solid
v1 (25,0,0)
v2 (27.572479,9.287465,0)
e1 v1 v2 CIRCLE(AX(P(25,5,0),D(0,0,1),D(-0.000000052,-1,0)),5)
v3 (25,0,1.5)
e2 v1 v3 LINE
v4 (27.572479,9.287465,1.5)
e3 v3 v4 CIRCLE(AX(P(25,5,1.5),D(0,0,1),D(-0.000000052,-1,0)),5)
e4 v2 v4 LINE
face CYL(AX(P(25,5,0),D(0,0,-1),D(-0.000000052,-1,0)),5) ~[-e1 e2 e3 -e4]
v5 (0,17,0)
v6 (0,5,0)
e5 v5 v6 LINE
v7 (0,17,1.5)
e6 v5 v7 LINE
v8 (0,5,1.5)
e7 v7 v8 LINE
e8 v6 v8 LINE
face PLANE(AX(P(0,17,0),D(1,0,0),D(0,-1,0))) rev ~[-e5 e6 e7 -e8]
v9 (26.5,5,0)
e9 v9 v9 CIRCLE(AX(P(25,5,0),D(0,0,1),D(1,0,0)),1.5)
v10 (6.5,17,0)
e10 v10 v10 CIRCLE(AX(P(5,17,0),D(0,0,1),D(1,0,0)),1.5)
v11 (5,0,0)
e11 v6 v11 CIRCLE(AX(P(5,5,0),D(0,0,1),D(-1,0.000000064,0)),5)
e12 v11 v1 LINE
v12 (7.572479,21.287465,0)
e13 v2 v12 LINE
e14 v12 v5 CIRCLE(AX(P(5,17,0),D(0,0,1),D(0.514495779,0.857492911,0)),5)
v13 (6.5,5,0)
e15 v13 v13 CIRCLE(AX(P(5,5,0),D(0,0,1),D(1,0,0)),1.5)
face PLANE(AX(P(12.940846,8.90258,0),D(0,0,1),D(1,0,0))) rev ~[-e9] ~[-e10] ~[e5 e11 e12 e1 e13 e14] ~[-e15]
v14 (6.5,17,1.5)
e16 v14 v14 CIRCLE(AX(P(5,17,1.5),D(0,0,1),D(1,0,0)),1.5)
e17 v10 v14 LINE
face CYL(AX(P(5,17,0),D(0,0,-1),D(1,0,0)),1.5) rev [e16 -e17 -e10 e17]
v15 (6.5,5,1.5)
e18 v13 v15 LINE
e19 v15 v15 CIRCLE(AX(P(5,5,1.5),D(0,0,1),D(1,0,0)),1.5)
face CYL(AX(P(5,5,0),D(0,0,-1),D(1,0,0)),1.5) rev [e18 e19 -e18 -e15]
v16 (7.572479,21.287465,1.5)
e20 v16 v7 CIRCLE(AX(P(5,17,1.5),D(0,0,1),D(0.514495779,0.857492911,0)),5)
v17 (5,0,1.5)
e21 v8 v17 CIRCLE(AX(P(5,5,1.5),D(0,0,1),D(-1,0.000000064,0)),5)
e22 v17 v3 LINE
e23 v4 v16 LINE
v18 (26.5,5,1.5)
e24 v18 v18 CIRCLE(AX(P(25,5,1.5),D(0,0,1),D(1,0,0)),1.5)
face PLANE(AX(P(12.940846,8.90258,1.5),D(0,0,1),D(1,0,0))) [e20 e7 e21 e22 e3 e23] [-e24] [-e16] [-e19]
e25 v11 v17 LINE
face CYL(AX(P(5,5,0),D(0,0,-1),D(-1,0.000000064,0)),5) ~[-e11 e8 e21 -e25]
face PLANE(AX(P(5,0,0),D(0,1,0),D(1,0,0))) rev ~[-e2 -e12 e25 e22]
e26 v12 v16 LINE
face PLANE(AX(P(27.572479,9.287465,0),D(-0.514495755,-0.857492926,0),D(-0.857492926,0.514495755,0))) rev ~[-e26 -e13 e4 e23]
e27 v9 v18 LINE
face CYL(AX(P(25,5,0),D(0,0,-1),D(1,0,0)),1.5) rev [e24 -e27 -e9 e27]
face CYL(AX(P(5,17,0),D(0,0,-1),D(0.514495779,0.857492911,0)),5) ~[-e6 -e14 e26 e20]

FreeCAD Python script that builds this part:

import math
import FreeCAD as App
import Part
import Sketcher

V = App.Vector

doc = App.newDocument("Part")
params = doc.addObject("Spreadsheet::Sheet", "Params")
for row, (alias, value) in enumerate([
    ("sketch1_diameter", "3 mm"),
    ("sketch1_radius", "5 mm"),
    ("sketch1_width", "20 mm"),
    ("sketch1_height", "12 mm"),
    ("pad1_length", "1.5 mm"),
], start=1):
    params.set(f"A{row}", alias)
    params.set(f"B{row}", "=" + value)
    params.setAlias(f"B{row}", alias)

body = doc.addObject("PartDesign::Body", "Body")

# Sketch on XY plane
sketch1 = body.newObject("Sketcher::SketchObject", "Sketch")
sketch1.AttachmentSupport = (doc.getObject("XY_Plane"), [""])
sketch1.MapMode = "FlatFace"
sketch1.addGeometry(Part.LineSegment(V(0, 17, 0), V(0, 5, 0)), False)
sketch1.addGeometry(Part.ArcOfCircle(Part.Circle(V(5, 5, 0), V(0, 0, 1), 5), math.radians(180), math.radians(270)), False)
sketch1.addGeometry(Part.LineSegment(V(5, 0, 0), V(25, 0, 0)), False)
sketch1.addGeometry(Part.ArcOfCircle(Part.Circle(V(25, 5, 0), V(0, 0, 1), 5), math.radians(-90), math.radians(59)), False)
sketch1.addGeometry(Part.LineSegment(V(27.6, 9.3, 0), V(7.6, 21.3, 0)), False)
sketch1.addGeometry(Part.ArcOfCircle(Part.Circle(V(5, 17, 0), V(0, 0, 1), 5), math.radians(59), math.radians(180)), False)
sketch1.addGeometry(Part.Circle(V(5, 5, 0), V(0, 0, 1), 1.5), False)
sketch1.addGeometry(Part.Circle(V(25, 5, 0), V(0, 0, 1), 1.5), False)
sketch1.addGeometry(Part.Circle(V(5, 17, 0), V(0, 0, 1), 1.5), False)
sketch1.addConstraint(Sketcher.Constraint("Tangent", 0, 2, 1, 1))
sketch1.addConstraint(Sketcher.Constraint("Tangent", 1, 2, 2, 1))
sketch1.addConstraint(Sketcher.Constraint("Tangent", 2, 2, 3, 1))
sketch1.addConstraint(Sketcher.Constraint("Tangent", 3, 2, 4, 1))
sketch1.addConstraint(Sketcher.Constraint("Tangent", 4, 2, 5, 1))
sketch1.addConstraint(Sketcher.Constraint("Tangent", 5, 2, 0, 1))
sketch1.addConstraint(Sketcher.Constraint("Vertical", 0))
sketch1.addConstraint(Sketcher.Constraint("Horizontal", 2))
sketch1.addConstraint(Sketcher.Constraint("Coincident", 6, 3, 1, 3))
sketch1.addConstraint(Sketcher.Constraint("Coincident", 7, 3, 3, 3))
sketch1.addConstraint(Sketcher.Constraint("Coincident", 8, 3, 5, 3))
sketch1.addConstraint(Sketcher.Constraint("Equal", 1, 3))
sketch1.addConstraint(Sketcher.Constraint("Equal", 3, 5))
sketch1.addConstraint(Sketcher.Constraint("Equal", 6, 7))
sketch1.addConstraint(Sketcher.Constraint("Equal", 7, 8))
sketch1.addConstraint(Sketcher.Constraint("PointOnObject", 0, 2, -2))
sketch1.addConstraint(Sketcher.Constraint("PointOnObject", 1, 2, -1))
sketch1.addConstraint(Sketcher.Constraint("Diameter", 6, 3.0))
sketch1.addConstraint(Sketcher.Constraint("Radius", 1, 5.0))
sketch1.addConstraint(Sketcher.Constraint("DistanceX", 2, 1, 2, 2, 20.0))
sketch1.addConstraint(Sketcher.Constraint("DistanceY", 0, 2, 0, 1, 12.0))
sketch1.setExpression("Constraints[17]", "Params.sketch1_diameter")
sketch1.setExpression("Constraints[18]", "Params.sketch1_radius")
sketch1.setExpression("Constraints[19]", "Params.sketch1_width")
sketch1.setExpression("Constraints[20]", "Params.sketch1_height")
pad1 = body.newObject("PartDesign::Pad", "Pad")
pad1.Profile = sketch1
pad1.setExpression("Length", "Params.pad1_length")

doc.recompute()
